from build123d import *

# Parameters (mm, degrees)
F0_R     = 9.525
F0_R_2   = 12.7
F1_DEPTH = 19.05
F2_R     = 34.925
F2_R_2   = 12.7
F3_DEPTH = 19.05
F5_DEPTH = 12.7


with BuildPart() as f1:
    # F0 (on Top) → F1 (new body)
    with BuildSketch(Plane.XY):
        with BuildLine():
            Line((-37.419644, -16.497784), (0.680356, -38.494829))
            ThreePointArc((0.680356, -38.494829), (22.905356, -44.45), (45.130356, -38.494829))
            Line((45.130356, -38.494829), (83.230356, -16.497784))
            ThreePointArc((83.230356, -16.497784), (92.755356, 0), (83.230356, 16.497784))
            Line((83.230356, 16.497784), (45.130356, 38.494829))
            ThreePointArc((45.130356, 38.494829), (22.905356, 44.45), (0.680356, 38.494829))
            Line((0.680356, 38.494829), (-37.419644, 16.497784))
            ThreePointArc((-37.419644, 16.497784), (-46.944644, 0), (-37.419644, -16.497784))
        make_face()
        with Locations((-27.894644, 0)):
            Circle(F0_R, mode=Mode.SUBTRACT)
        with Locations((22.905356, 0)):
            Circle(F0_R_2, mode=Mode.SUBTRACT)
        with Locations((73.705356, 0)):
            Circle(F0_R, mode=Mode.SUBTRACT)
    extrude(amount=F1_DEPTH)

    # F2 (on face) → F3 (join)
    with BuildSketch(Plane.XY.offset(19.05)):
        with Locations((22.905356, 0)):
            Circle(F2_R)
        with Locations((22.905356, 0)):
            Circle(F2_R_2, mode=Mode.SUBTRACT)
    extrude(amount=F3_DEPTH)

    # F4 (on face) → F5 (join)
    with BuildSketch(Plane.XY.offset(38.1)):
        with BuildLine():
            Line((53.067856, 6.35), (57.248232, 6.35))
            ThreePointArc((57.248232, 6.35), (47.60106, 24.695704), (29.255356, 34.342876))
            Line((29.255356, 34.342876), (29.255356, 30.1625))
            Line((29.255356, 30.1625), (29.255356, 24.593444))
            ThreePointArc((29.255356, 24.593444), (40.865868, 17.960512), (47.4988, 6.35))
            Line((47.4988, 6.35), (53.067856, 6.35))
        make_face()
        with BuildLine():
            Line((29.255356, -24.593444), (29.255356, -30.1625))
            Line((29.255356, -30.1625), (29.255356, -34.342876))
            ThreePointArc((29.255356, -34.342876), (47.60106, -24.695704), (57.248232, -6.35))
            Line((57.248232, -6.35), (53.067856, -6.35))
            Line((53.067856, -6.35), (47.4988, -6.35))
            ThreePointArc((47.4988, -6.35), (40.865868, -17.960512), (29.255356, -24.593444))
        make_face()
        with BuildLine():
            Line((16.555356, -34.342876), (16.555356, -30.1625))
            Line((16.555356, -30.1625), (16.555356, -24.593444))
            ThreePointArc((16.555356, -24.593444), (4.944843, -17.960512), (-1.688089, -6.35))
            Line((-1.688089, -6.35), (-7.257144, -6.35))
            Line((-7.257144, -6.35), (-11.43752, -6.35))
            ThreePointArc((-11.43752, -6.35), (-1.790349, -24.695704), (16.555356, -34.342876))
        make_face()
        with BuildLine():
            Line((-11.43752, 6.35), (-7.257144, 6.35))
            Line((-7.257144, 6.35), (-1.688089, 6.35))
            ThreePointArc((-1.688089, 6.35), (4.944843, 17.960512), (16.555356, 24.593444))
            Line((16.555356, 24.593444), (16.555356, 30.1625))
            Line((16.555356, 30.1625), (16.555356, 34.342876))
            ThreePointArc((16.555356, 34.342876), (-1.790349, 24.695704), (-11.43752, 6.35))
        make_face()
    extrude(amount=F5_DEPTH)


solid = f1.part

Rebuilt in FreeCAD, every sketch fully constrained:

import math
import FreeCAD as App
import Part
import Sketcher

V = App.Vector
Q = App.Units.Quantity

doc = App.newDocument("Part")
body = doc.addObject("PartDesign::Body", "Body")

# Sketch on XY plane
sketch1 = body.newObject("Sketcher::SketchObject", "Sketch")
sketch1.AttachmentSupport = (doc.getObject("XY_Plane"), [""])
sketch1.MapMode = "FlatFace"
sketch1.addGeometry([
    Part.LineSegment(V(-37, -16, 0), V(1, -38, 0)),  # 0
    Part.ArcOfCircle(Part.Circle(V(23, 0, 0), V(0, 0, 1), 44), math.radians(-120), math.radians(-60)),  # 1
    Part.LineSegment(V(45, -38, 0), V(83, -16, 0)),  # 2
    Part.ArcOfCircle(Part.Circle(V(74, 0, 0), V(0, 0, 1), 19), math.radians(-60), math.radians(60)),  # 3
    Part.LineSegment(V(83, 16, 0), V(45, 38, 0)),  # 4
    Part.ArcOfCircle(Part.Circle(V(23, 0, 0), V(0, 0, 1), 44), math.radians(60), math.radians(120)),  # 5
    Part.LineSegment(V(1, 38, 0), V(-37, 16, 0)),  # 6
    Part.ArcOfCircle(Part.Circle(V(-28, 0, 0), V(0, 0, 1), 19), math.radians(120), math.radians(240)),  # 7
    Part.Circle(V(-28, 0, 0), V(0, 0, 1), 10),  # 8
    Part.Circle(V(23, 0, 0), V(0, 0, 1), 13),  # 9
    Part.Circle(V(74, 0, 0), V(0, 0, 1), 10),  # 10
], False)
sketch1.addConstraint([
    Sketcher.Constraint("Tangent", 0, 2, 1, 1),
    Sketcher.Constraint("Tangent", 1, 2, 2, 1),
    Sketcher.Constraint("Tangent", 2, 2, 3, 1),
    Sketcher.Constraint("Tangent", 3, 2, 4, 1),
    Sketcher.Constraint("Tangent", 4, 2, 5, 1),
    Sketcher.Constraint("Tangent", 5, 2, 6, 1),
    Sketcher.Constraint("Tangent", 6, 2, 7, 1),
    Sketcher.Constraint("Tangent", 7, 2, 0, 1),
    Sketcher.Constraint("Coincident", 5, 3, 1, 3),
    Sketcher.Constraint("Coincident", 8, 3, 7, 3),
    Sketcher.Constraint("Coincident", 9, 3, 1, 3),
    Sketcher.Constraint("Coincident", 10, 3, 3, 3),
    Sketcher.Constraint("Equal", 1, 5),
    Sketcher.Constraint("Equal", 3, 7),
    Sketcher.Constraint("Equal", 8, 10),
    Sketcher.Constraint("Symmetric", 2, 2, 3, 2, -1),
    Sketcher.Constraint("PointOnObject", 7, 3, -1),
    Sketcher.Constraint("Parallel", 0, 4),
    Sketcher.Constraint("Diameter", 9, Q("1 in")),
    Sketcher.Constraint("Diameter", 8, Q("0.75 in")),
    Sketcher.Constraint("Radius", 1, Q("1.7499999 in")),
    Sketcher.Constraint("Radius", 3, Q("0.75 in")),
    Sketcher.Constraint("Angle", 0, Q("-30 deg")),
    Sketcher.Constraint("DistanceX", -1, 1, 1, 3, Q("22.905356 mm")),
])
pad1 = body.newObject("PartDesign::Pad", "Pad")
pad1.Profile = sketch1
pad1.Length = Q("0.75 in")

# Sketch on XY plane
sketch2 = body.newObject("Sketcher::SketchObject", "Sketch001")
sketch2.AttachmentSupport = (doc.getObject("XY_Plane"), [""])
sketch2.MapMode = "FlatFace"
sketch2.AttachmentOffset = App.Placement(V(0, 0, 0.75 * 25.4), App.Rotation())
sketch2.addGeometry([
    Part.Circle(V(23, 0, 0), V(0, 0, 1), 35),
    Part.Circle(V(23, 0, 0), V(0, 0, 1), 13),
], False)
sketch2.addConstraint([
    Sketcher.Constraint("Coincident", 1, 3, 0, 3),
    Sketcher.Constraint("PointOnObject", 0, 3, -1),
    Sketcher.Constraint("Diameter", 1, Q("1 in")),
    Sketcher.Constraint("Diameter", 0, Q("2.75 in")),
    Sketcher.Constraint("DistanceX", -1, 1, 0, 3, Q("22.905356 mm")),
])
pad2 = body.newObject("PartDesign::Pad", "Pad001")
pad2.Profile = sketch2
pad2.Length = Q("0.75 in")

# Sketch on XY plane
sketch3 = body.newObject("Sketcher::SketchObject", "Sketch002")
sketch3.AttachmentSupport = (doc.getObject("XY_Plane"), [""])
sketch3.MapMode = "FlatFace"
sketch3.AttachmentOffset = App.Placement(V(0, 0, 1.5 * 25.4), App.Rotation())
sketch3.addGeometry([
    Part.ArcOfCircle(Part.Circle(V(23, 0, 0), V(0, 0, 1), 35), math.radians(10), math.radians(80)),  # 0
    Part.LineSegment(V(29, 34, 0), V(29, 25, 0)),  # 1
    Part.ArcOfCircle(Part.Circle(V(23, 0, 0), V(0, 0, 1), 25), math.radians(14), math.radians(76)),  # 2
    Part.LineSegment(V(47, 6, 0), V(57, 6, 0)),  # 3
    Part.LineSegment(V(29, -25, 0), V(29, -34, 0)),  # 4
    Part.ArcOfCircle(Part.Circle(V(23, 0, 0), V(0, 0, 1), 35), math.radians(-80), math.radians(-10)),  # 5
    Part.LineSegment(V(57, -6, 0), V(47, -6, 0)),  # 6
    Part.ArcOfCircle(Part.Circle(V(23, 0, 0), V(0, 0, 1), 25), math.radians(-76), math.radians(-14)),  # 7
    Part.LineSegment(V(17, -34, 0), V(17, -25, 0)),  # 8
    Part.ArcOfCircle(Part.Circle(V(23, 0, 0), V(0, 0, 1), 25), math.radians(-166), math.radians(-104)),  # 9
    Part.LineSegment(V(-2, -6, 0), V(-11, -6, 0)),  # 10
    Part.ArcOfCircle(Part.Circle(V(23, 0, 0), V(0, 0, 1), 35), math.radians(-170), math.radians(-100)),  # 11
    Part.LineSegment(V(-11, 6, 0), V(-2, 6, 0)),  # 12
    Part.ArcOfCircle(Part.Circle(V(23, 0, 0), V(0, 0, 1), 25), math.radians(104), math.radians(166)),  # 13
    Part.LineSegment(V(17, 25, 0), V(17, 34, 0)),  # 14
    Part.ArcOfCircle(Part.Circle(V(23, 0, 0), V(0, 0, 1), 35), math.radians(100), math.radians(170)),  # 15
], False)
sketch3.addConstraint([
    Sketcher.Constraint("Coincident", 0, 2, 1, 1),
    Sketcher.Constraint("Coincident", 1, 2, 2, 2),
    Sketcher.Constraint("Coincident", 2, 1, 3, 1),
    Sketcher.Constraint("Coincident", 3, 2, 0, 1),
    Sketcher.Constraint("Coincident", 4, 2, 5, 1),
    Sketcher.Constraint("Coincident", 5, 2, 6, 1),
    Sketcher.Constraint("Coincident", 6, 2, 7, 2),
    Sketcher.Constraint("Coincident", 7, 1, 4, 1),
    Sketcher.Constraint("Coincident", 8, 2, 9, 2),
    Sketcher.Constraint("Coincident", 9, 1, 10, 1),
    Sketcher.Constraint("Coincident", 10, 2, 11, 1),
    Sketcher.Constraint("Coincident", 11, 2, 8, 1),
    Sketcher.Constraint("Coincident", 12, 2, 13, 2),
    Sketcher.Constraint("Coincident", 13, 1, 14, 1),
    Sketcher.Constraint("Coincident", 14, 2, 15, 1),
    Sketcher.Constraint("Coincident", 15, 2, 12, 1),
    Sketcher.Constraint("Vertical", 1),
    Sketcher.Constraint("Horizontal", 3),
    Sketcher.Constraint("Vertical", 4),
    Sketcher.Constraint("Horizontal", 6),
    Sketcher.Constraint("Vertical", 8),
    Sketcher.Constraint("Horizontal", 10),
    Sketcher.Constraint("Horizontal", 12),
    Sketcher.Constraint("Vertical", 14),
    Sketcher.Constraint("Coincident", 2, 3, 0, 3),
    Sketcher.Constraint("Coincident", 5, 3, 0, 3),
    Sketcher.Constraint("Coincident", 7, 3, 0, 3),
    Sketcher.Constraint("Coincident", 9, 3, 0, 3),
    Sketcher.Constraint("Coincident", 11, 3, 0, 3),
    Sketcher.Constraint("Coincident", 13, 3, 0, 3),
    Sketcher.Constraint("Coincident", 15, 3, 0, 3),
    Sketcher.Constraint("Equal", 0, 5),
    Sketcher.Constraint("Equal", 2, 7),
    Sketcher.Constraint("Equal", 7, 9),
    Sketcher.Constraint("Equal", 9, 13),
    Sketcher.Constraint("Equal", 11, 15),
    Sketcher.Constraint("Symmetric", 0, 2, 4, 2, -1),
    Sketcher.Constraint("Horizontal", 7, 1, 8, 2),
    Sketcher.Constraint("Horizontal", 6, 2, 9, 1),
    Sketcher.Constraint("Horizontal", 4, 2, 11, 2),
    Sketcher.Constraint("Horizontal", 3, 2, 12, 2),
    Sketcher.Constraint("Horizontal", 1, 2, 13, 1),
    Sketcher.Constraint("Vertical", 3, 2, 5, 2),
    Sketcher.Constraint("Equal", 12, 1),
    Sketcher.Constraint("Radius", 2, Q("1 in")),
    Sketcher.Constraint("Radius", 0, Q("1.3750001 in")),
    Sketcher.Constraint("DistanceY", 5, 2, 3, 2, Q("0.5 in")),
    Sketcher.Constraint("DistanceX", -1, 1, 2, 1, Q("47.4988 mm")),
])
pad3 = body.newObject("PartDesign::Pad", "Pad002")
pad3.Profile = sketch3
pad3.Length = Q("0.5 in")

doc.recompute()
